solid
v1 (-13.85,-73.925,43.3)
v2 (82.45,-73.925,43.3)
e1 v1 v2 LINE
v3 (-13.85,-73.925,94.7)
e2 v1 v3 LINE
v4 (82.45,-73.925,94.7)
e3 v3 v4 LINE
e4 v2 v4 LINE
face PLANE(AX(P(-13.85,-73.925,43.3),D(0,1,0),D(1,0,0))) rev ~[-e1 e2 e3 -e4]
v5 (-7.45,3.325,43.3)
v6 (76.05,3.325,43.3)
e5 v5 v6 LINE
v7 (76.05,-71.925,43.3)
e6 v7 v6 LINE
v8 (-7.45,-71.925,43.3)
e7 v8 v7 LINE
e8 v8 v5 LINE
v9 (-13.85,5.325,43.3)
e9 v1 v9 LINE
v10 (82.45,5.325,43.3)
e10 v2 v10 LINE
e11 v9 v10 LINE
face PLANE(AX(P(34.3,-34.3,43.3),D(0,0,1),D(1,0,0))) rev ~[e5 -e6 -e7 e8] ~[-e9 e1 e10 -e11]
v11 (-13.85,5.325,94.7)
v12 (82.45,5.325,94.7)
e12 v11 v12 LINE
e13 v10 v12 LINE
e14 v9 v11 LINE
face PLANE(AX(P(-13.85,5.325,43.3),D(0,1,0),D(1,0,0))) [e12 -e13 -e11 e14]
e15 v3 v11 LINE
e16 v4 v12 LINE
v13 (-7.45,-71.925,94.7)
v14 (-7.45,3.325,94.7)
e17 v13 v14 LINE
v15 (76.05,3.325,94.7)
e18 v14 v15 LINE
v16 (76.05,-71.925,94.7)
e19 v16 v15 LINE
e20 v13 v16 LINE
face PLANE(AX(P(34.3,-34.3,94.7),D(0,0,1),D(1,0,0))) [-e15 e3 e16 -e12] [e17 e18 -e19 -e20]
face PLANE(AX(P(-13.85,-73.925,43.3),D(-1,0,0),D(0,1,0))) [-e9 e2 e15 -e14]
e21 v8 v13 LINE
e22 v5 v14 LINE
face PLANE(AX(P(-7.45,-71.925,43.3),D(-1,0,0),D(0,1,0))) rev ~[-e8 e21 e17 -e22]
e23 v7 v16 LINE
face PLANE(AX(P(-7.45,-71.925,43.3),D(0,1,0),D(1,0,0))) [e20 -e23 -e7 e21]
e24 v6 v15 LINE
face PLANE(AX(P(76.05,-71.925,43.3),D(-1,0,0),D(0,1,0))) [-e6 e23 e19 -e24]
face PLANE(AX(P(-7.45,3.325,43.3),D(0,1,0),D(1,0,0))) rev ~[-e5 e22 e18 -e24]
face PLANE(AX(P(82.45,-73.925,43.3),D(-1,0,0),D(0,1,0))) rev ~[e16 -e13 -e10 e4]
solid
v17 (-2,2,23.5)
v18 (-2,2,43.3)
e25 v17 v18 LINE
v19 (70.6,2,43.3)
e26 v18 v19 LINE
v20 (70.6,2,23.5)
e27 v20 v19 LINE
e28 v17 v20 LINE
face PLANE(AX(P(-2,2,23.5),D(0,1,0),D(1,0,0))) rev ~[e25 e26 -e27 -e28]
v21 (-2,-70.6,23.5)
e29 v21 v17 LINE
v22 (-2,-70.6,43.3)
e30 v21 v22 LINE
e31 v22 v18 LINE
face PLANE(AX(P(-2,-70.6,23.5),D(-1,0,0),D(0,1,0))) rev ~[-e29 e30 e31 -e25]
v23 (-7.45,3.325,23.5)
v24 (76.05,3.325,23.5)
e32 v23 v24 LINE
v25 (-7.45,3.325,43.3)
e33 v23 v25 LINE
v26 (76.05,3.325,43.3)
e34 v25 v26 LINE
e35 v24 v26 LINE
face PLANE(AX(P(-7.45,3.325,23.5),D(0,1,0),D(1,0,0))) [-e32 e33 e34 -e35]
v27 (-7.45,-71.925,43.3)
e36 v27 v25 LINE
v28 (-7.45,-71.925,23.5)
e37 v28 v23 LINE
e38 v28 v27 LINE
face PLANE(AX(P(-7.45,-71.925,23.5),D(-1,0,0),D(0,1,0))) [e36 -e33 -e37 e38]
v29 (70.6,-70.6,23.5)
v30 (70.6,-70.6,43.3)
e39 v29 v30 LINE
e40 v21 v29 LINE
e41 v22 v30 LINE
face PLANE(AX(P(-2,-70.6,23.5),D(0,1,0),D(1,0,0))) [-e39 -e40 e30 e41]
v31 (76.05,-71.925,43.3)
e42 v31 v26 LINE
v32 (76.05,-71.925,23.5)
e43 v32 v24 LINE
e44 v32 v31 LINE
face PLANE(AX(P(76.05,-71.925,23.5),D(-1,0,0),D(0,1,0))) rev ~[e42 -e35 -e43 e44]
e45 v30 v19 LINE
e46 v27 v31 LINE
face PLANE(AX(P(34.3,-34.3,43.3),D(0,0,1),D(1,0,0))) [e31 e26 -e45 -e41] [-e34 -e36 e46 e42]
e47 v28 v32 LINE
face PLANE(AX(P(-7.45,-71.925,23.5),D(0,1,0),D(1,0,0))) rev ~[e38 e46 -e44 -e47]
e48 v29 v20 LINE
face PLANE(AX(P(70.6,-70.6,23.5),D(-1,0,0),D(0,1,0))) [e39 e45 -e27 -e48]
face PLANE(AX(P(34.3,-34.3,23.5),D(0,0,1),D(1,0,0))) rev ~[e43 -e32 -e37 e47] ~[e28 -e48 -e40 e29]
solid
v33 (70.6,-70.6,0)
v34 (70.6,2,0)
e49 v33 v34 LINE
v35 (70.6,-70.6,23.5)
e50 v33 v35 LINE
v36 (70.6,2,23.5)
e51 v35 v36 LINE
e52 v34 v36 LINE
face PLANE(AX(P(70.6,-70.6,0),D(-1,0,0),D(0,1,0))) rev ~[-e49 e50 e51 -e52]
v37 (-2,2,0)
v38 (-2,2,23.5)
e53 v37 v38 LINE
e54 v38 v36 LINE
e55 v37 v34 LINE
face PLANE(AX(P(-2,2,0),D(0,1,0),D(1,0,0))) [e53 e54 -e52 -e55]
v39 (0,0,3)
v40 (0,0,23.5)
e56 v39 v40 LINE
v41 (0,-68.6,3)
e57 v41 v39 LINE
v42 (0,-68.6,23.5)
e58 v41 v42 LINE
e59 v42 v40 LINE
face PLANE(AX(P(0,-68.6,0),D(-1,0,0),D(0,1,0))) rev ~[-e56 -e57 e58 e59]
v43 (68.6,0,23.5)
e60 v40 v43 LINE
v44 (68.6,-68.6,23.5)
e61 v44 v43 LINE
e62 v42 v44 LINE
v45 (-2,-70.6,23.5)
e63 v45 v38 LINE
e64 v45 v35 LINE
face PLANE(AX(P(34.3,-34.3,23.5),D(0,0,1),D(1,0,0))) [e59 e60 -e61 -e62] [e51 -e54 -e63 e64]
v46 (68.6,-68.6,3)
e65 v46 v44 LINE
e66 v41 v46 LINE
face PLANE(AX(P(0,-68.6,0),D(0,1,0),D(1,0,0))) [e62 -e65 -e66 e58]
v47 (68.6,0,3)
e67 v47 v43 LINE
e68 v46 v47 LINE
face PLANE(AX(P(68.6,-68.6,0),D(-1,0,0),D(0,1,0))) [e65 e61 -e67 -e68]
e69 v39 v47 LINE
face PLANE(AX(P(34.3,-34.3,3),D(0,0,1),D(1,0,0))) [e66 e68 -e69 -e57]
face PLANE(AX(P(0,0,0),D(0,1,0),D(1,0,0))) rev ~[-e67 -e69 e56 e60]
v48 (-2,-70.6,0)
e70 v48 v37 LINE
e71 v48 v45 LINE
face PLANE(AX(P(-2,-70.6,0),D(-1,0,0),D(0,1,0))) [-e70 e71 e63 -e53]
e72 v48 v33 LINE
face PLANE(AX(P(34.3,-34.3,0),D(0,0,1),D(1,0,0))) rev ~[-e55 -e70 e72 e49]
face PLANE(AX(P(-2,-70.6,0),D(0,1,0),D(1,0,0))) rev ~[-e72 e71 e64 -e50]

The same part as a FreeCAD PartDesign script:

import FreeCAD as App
import Part
import Sketcher
from FreeCAD import Vector


def add_polygon(sketch, points):
    """Adds a closed chain of lines whose ends are joined by coincident constraints."""
    first, n = sketch.GeometryCount, len(points)
    for a, b in zip(points, points[1:] + points[:1]):
        sketch.addGeometry(Part.LineSegment(App.Vector(*a, 0), App.Vector(*b, 0)), False)
    for i in range(n):
        sketch.addConstraint(Sketcher.Constraint("Coincident", first + i, 2, first + (i + 1) % n, 1))

doc = App.newDocument("Part")
body = doc.addObject("PartDesign::Body", "Body")

# Sketch on XY plane
sketch1 = doc.addObject("Sketcher::SketchObject", "Sketch")
body.addObject(sketch1)
sketch1.AttachmentSupport = (doc.XY_Plane, [""])
sketch1.MapMode = "FlatFace"
add_polygon(sketch1, [(0, 0), (0, -69), (69, -69), (69, 0)])  # lines 0-3
sketch1.addConstraint(Sketcher.Constraint("Vertical", 0))
sketch1.addConstraint(Sketcher.Constraint("Horizontal", 1))
sketch1.addConstraint(Sketcher.Constraint("Vertical", 2))
sketch1.addConstraint(Sketcher.Constraint("Horizontal", 3))
sketch1.addConstraint(Sketcher.Constraint("Coincident", 3, 2, -1, 1))
sketch1.addConstraint(Sketcher.Constraint("Equal", 3, 0))
sketch1.addConstraint(Sketcher.Constraint("DistanceX", 1, 1, 1, 2, 68.6))
pad1 = doc.addObject("PartDesign::Pad", "Pad")
body.addObject(pad1)
pad1.Profile = sketch1
pad1.Length = 3

# Sketch on XY plane
sketch2 = doc.addObject("Sketcher::SketchObject", "Sketch001")
body.addObject(sketch2)
sketch2.AttachmentSupport = (doc.XY_Plane, [""])
sketch2.MapMode = "FlatFace"
add_polygon(sketch2, [(-2, 2), (-2, -71), (71, -71), (71, 2)])  # lines 0-3
add_polygon(sketch2, [(69, -69), (0, -69), (0, 0), (69, 0)])  # lines 4-7
sketch2.addConstraint(Sketcher.Constraint("Vertical", 0))
sketch2.addConstraint(Sketcher.Constraint("Horizontal", 1))
sketch2.addConstraint(Sketcher.Constraint("Vertical", 2))
sketch2.addConstraint(Sketcher.Constraint("Horizontal", 3))
sketch2.addConstraint(Sketcher.Constraint("Horizontal", 4))
sketch2.addConstraint(Sketcher.Constraint("Vertical", 5))
sketch2.addConstraint(Sketcher.Constraint("Horizontal", 6))
sketch2.addConstraint(Sketcher.Constraint("Vertical", 7))
sketch2.addConstraint(Sketcher.Constraint("Coincident", 5, 2, -1, 1))
sketch2.addConstraint(Sketcher.Constraint("Equal", 3, 0))
sketch2.addConstraint(Sketcher.Constraint("Equal", 6, 5))
sketch2.addConstraint(Sketcher.Constraint("DistanceX", 1, 1, 1, 2, 72.6))
sketch2.addConstraint(Sketcher.Constraint("DistanceX", 4, 2, 4, 1, 68.6))
sketch2.addConstraint(Sketcher.Constraint("DistanceX", 0, 2, -1, 1, 2.0))
sketch2.addConstraint(Sketcher.Constraint("DistanceY", -1, 1, 2, 2, 2.0))
pad2 = doc.addObject("PartDesign::Pad", "Pad001")
body.addObject(pad2)
pad2.Profile = sketch2
pad2.Length = 23.5
body2 = doc.addObject("PartDesign::Body", "Body001")

# Sketch on XY plane
sketch3 = doc.addObject("Sketcher::SketchObject", "Sketch002")
body2.addObject(sketch3)
sketch3.AttachmentSupport = (doc.getObject("XY_Plane001"), [""])
sketch3.MapMode = "FlatFace"
sketch3.AttachmentOffset = App.Placement(Vector(0, 0, 23.5), App.Rotation())
add_polygon(sketch3, [(-7, 3), (-7, -72), (76, -72), (76, 3)])  # lines 0-3
add_polygon(sketch3, [(71, -71), (-2, -71), (-2, 2), (71, 2)])  # lines 4-7
sketch3.addConstraint(Sketcher.Constraint("Vertical", 0))
sketch3.addConstraint(Sketcher.Constraint("Horizontal", 1))
sketch3.addConstraint(Sketcher.Constraint("Vertical", 2))
sketch3.addConstraint(Sketcher.Constraint("Horizontal", 3))
sketch3.addConstraint(Sketcher.Constraint("Horizontal", 4))
sketch3.addConstraint(Sketcher.Constraint("Vertical", 5))
sketch3.addConstraint(Sketcher.Constraint("Horizontal", 6))
sketch3.addConstraint(Sketcher.Constraint("Vertical", 7))
sketch3.addConstraint(Sketcher.Constraint("Equal", 6, 5))
sketch3.addConstraint(Sketcher.Constraint("DistanceX", 1, 1, 1, 2, 83.5))
sketch3.addConstraint(Sketcher.Constraint("DistanceX", 4, 2, 4, 1, 72.6))
sketch3.addConstraint(Sketcher.Constraint("DistanceX", 4, 2, -1, 1, 2.0))
sketch3.addConstraint(Sketcher.Constraint("DistanceY", -1, 1, 5, 2, 2.0))
sketch3.addConstraint(Sketcher.Constraint("DistanceY", 0, 2, 0, 1, 75.25))
sketch3.addConstraint(Sketcher.Constraint("DistanceX", 0, 2, -1, 1, 7.45))
sketch3.addConstraint(Sketcher.Constraint("DistanceY", 0, 2, -1, 1, 71.925))
pad3 = doc.addObject("PartDesign::Pad", "Pad002")
body2.addObject(pad3)
pad3.Profile = sketch3
pad3.Length = 19.8
body3 = doc.addObject("PartDesign::Body", "Body002")

# Sketch on XY plane
sketch4 = doc.addObject("Sketcher::SketchObject", "Sketch003")
body3.addObject(sketch4)
sketch4.AttachmentSupport = (doc.getObject("XY_Plane002"), [""])
sketch4.MapMode = "FlatFace"
sketch4.AttachmentOffset = App.Placement(Vector(0, 0, 43.3), App.Rotation())
add_polygon(sketch4, [(-14, 5), (-14, -74), (82, -74), (82, 5)])  # lines 0-3
add_polygon(sketch4, [(76, -72), (-7, -72), (-7, 3), (76, 3)])  # lines 4-7
sketch4.addConstraint(Sketcher.Constraint("Vertical", 0))
sketch4.addConstraint(Sketcher.Constraint("Horizontal", 1))
sketch4.addConstraint(Sketcher.Constraint("Vertical", 2))
sketch4.addConstraint(Sketcher.Constraint("Horizontal", 3))
sketch4.addConstraint(Sketcher.Constraint("Horizontal", 4))
sketch4.addConstraint(Sketcher.Constraint("Vertical", 5))
sketch4.addConstraint(Sketcher.Constraint("Horizontal", 6))
sketch4.addConstraint(Sketcher.Constraint("Vertical", 7))
sketch4.addConstraint(Sketcher.Constraint("DistanceX", 1, 1, 1, 2, 96.3))
sketch4.addConstraint(Sketcher.Constraint("DistanceX", 4, 2, 4, 1, 83.5))
sketch4.addConstraint(Sketcher.Constraint("DistanceY", 0, 2, 4, 2, 2.0))
sketch4.addConstraint(Sketcher.Constraint("DistanceY", 5, 2, 3, 2, 2.0))
sketch4.addConstraint(Sketcher.Constraint("DistanceY", 0, 2, 0, 1, 79.25))
sketch4.addConstraint(Sketcher.Constraint("DistanceX", 0, 2, 4, 2, 6.4))
sketch4.addConstraint(Sketcher.Constraint("DistanceX", 0, 2, -1, 1, 13.85))
sketch4.addConstraint(Sketcher.Constraint("DistanceY", 0, 2, -1, 1, 73.925))
pad4 = doc.addObject("PartDesign::Pad", "Pad003")
body3.addObject(pad4)
pad4.Profile = sketch4
pad4.Length = 51.4

doc.recompute()
